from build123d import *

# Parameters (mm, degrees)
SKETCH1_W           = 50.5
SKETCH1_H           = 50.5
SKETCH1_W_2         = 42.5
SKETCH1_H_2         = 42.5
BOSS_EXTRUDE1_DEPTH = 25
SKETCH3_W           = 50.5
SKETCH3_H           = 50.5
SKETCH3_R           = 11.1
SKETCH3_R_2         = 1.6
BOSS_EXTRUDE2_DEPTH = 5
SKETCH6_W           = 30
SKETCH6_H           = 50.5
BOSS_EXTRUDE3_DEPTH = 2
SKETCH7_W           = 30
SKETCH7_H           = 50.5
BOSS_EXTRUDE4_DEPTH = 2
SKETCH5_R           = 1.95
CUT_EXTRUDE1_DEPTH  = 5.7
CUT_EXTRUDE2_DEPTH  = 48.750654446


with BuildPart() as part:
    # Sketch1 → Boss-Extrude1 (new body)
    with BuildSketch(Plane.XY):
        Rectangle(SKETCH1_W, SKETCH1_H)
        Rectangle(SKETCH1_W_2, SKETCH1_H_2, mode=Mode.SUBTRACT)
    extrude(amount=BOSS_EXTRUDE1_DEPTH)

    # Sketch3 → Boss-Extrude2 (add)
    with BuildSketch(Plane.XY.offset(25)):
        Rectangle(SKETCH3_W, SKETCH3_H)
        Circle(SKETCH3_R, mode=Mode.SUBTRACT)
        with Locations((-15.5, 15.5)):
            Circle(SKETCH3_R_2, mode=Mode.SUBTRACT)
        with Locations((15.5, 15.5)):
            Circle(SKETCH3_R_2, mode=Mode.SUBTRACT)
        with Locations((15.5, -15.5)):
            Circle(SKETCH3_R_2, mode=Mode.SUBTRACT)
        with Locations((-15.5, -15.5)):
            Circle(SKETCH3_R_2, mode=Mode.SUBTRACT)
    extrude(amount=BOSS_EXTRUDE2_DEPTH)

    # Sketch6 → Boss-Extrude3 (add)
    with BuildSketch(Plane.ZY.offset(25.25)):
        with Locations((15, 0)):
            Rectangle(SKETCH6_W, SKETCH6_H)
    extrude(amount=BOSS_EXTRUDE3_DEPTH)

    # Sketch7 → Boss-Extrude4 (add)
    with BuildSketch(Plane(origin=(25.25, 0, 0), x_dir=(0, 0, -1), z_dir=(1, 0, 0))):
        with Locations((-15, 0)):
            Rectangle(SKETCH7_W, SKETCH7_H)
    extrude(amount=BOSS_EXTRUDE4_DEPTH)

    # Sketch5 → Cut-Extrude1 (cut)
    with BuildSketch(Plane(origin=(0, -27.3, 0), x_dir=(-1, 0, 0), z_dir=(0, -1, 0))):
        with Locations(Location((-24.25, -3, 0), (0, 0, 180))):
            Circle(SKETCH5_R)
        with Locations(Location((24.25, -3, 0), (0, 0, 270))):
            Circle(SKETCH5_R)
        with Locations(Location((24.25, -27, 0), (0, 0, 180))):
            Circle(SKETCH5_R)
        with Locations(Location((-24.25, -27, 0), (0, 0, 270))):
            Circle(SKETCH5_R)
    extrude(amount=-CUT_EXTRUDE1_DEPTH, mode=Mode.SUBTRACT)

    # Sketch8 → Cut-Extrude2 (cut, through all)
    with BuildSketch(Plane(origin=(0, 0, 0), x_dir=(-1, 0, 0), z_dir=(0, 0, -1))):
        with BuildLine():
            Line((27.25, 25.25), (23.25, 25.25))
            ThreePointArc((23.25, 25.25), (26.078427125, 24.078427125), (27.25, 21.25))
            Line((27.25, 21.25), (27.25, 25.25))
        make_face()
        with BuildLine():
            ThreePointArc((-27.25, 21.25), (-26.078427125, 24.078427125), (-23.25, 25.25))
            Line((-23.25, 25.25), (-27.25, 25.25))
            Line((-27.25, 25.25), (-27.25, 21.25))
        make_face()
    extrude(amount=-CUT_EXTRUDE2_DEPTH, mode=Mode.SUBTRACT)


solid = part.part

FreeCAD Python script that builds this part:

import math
import FreeCAD as App
import Part
import Sketcher

doc = App.newDocument("Part")
body = doc.addObject("PartDesign::Body", "Body")

# Sketch on XY plane
sketch1 = body.newObject("Sketcher::SketchObject", "Sketch")
sketch1.AttachmentSupport = (doc.getObject("XY_Plane"), [""])
sketch1.MapMode = "FlatFace"
sketch1.addGeometry([
    Part.LineSegment(App.Vector(-25, 25, 0), App.Vector(-25, -25, 0)),  # 0
    Part.LineSegment(App.Vector(-25, -25, 0), App.Vector(25, -25, 0)),  # 1
    Part.LineSegment(App.Vector(25, -25, 0), App.Vector(25, 25, 0)),  # 2
    Part.LineSegment(App.Vector(25, 25, 0), App.Vector(-25, 25, 0)),  # 3
    Part.LineSegment(App.Vector(21, -21, 0), App.Vector(-21, -21, 0)),  # 4
    Part.LineSegment(App.Vector(-21, -21, 0), App.Vector(-21, 21, 0)),  # 5
    Part.LineSegment(App.Vector(-21, 21, 0), App.Vector(21, 21, 0)),  # 6
    Part.LineSegment(App.Vector(21, 21, 0), App.Vector(21, -21, 0)),  # 7
], False)
sketch1.addConstraint([
    Sketcher.Constraint("Coincident", 0, 2, 1, 1),
    Sketcher.Constraint("Coincident", 1, 2, 2, 1),
    Sketcher.Constraint("Coincident", 2, 2, 3, 1),
    Sketcher.Constraint("Coincident", 3, 2, 0, 1),
    Sketcher.Constraint("Coincident", 4, 2, 5, 1),
    Sketcher.Constraint("Coincident", 5, 2, 6, 1),
    Sketcher.Constraint("Coincident", 6, 2, 7, 1),
    Sketcher.Constraint("Coincident", 7, 2, 4, 1),
    Sketcher.Constraint("Vertical", 0),
    Sketcher.Constraint("Horizontal", 1),
    Sketcher.Constraint("Vertical", 2),
    Sketcher.Constraint("Horizontal", 3),
    Sketcher.Constraint("Horizontal", 4),
    Sketcher.Constraint("Vertical", 5),
    Sketcher.Constraint("Horizontal", 6),
    Sketcher.Constraint("Vertical", 7),
    Sketcher.Constraint("Symmetric", 0, 2, 2, 2, -1, 1),
    Sketcher.Constraint("Symmetric", 4, 2, 6, 2, -1, 1),
    Sketcher.Constraint("Equal", 3, 0),
    Sketcher.Constraint("Equal", 6, 5),
    Sketcher.Constraint("DistanceX", 1, 1, 1, 2, 50.5),
    Sketcher.Constraint("DistanceX", 4, 2, 4, 1, 42.5),
])
pad1 = body.newObject("PartDesign::Pad", "Pad")
pad1.Profile = sketch1
pad1.Length = 25

# Sketch on XY plane
sketch2 = body.newObject("Sketcher::SketchObject", "Sketch001")
sketch2.AttachmentSupport = (doc.getObject("XY_Plane"), [""])
sketch2.MapMode = "FlatFace"
sketch2.AttachmentOffset = App.Placement(App.Vector(0, 0, 25), App.Rotation())
sketch2.addGeometry([
    Part.LineSegment(App.Vector(-25.2, 25.2, 0), App.Vector(-25.2, -25.2, 0)),  # 0
    Part.LineSegment(App.Vector(-25.2, -25.2, 0), App.Vector(25.2, -25.2, 0)),  # 1
    Part.LineSegment(App.Vector(25.2, -25.2, 0), App.Vector(25.2, 25.2, 0)),  # 2
    Part.LineSegment(App.Vector(25.2, 25.2, 0), App.Vector(-25.2, 25.2, 0)),  # 3
    Part.Circle(App.Vector(-15.5, -15.5, 0), App.Vector(0, 0, 1), 1.6),  # 4
    Part.Circle(App.Vector(15.5, -15.5, 0), App.Vector(0, 0, 1), 1.6),  # 5
    Part.Circle(App.Vector(-15.5, 15.5, 0), App.Vector(0, 0, 1), 1.6),  # 6
    Part.Circle(App.Vector(0, 0, 0), App.Vector(0, 0, 1), 11.1),  # 7
    Part.Circle(App.Vector(15.5, 15.5, 0), App.Vector(0, 0, 1), 1.6),  # 8
], False)
sketch2.addConstraint([
    Sketcher.Constraint("Coincident", 0, 2, 1, 1),
    Sketcher.Constraint("Coincident", 1, 2, 2, 1),
    Sketcher.Constraint("Coincident", 2, 2, 3, 1),
    Sketcher.Constraint("Coincident", 3, 2, 0, 1),
    Sketcher.Constraint("Vertical", 0),
    Sketcher.Constraint("Horizontal", 1),
    Sketcher.Constraint("Vertical", 2),
    Sketcher.Constraint("Horizontal", 3),
    Sketcher.Constraint("Coincident", 7, 3, -1, 1),
    Sketcher.Constraint("Equal", 4, 5),
    Sketcher.Constraint("Equal", 5, 6),
    Sketcher.Constraint("Equal", 6, 8),
    Sketcher.Constraint("Symmetric", 5, 3, 6, 3, -1, 1),
    Sketcher.Constraint("Symmetric", 4, 3, 8, 3, -1, 1),
    Sketcher.Constraint("Symmetric", 0, 2, 2, 2, -1, 1),
    Sketcher.Constraint("Symmetric", 4, 3, 5, 3, -2),
    Sketcher.Constraint("Equal", 3, 0),
    Sketcher.Constraint("Diameter", 4, 3.2),
    Sketcher.Constraint("Diameter", 7, 22.2),
    Sketcher.Constraint("DistanceX", 1, 1, 1, 2, 50.5),
    Sketcher.Constraint("DistanceX", 4, 3, 5, 3, 31.0),
    Sketcher.Constraint("DistanceY", 4, 3, 6, 3, 31.0),
])
pad2 = body.newObject("PartDesign::Pad", "Pad001")
pad2.Profile = sketch2
pad2.Length = 5

# Sketch on YZ plane
sketch3 = body.newObject("Sketcher::SketchObject", "Sketch002")
sketch3.AttachmentSupport = (doc.getObject("YZ_Plane"), [""])
sketch3.MapMode = "FlatFace"
sketch3.AttachmentOffset = App.Placement(App.Vector(0, 0, -25.25), App.Rotation())
sketch3.addGeometry([
    Part.LineSegment(App.Vector(25, 0, 0), App.Vector(-25, 0, 0)),
    Part.LineSegment(App.Vector(-25, 0, 0), App.Vector(-25, 30, 0)),
    Part.LineSegment(App.Vector(-25, 30, 0), App.Vector(25, 30, 0)),
    Part.LineSegment(App.Vector(25, 30, 0), App.Vector(25, 0, 0)),
], False)
sketch3.addConstraint([
    Sketcher.Constraint("Coincident", 0, 2, 1, 1),
    Sketcher.Constraint("Coincident", 1, 2, 2, 1),
    Sketcher.Constraint("Coincident", 2, 2, 3, 1),
    Sketcher.Constraint("Coincident", 3, 2, 0, 1),
    Sketcher.Constraint("Horizontal", 0),
    Sketcher.Constraint("Vertical", 1),
    Sketcher.Constraint("Horizontal", 2),
    Sketcher.Constraint("Vertical", 3),
    Sketcher.Constraint("Symmetric", 0, 2, 3, 2, -1, 1),
    Sketcher.Constraint("DistanceY", 1, 1, 1, 2, 30.0),
    Sketcher.Constraint("DistanceX", 0, 2, 0, 1, 50.5),
])
pad3 = body.newObject("PartDesign::Pad", "Pad002")
pad3.Profile = sketch3
pad3.Length = 2
pad3.Reversed = True

# Sketch on YZ plane
sketch4 = body.newObject("Sketcher::SketchObject", "Sketch003")
sketch4.AttachmentSupport = (doc.getObject("YZ_Plane"), [""])
sketch4.MapMode = "FlatFace"
sketch4.AttachmentOffset = App.Placement(App.Vector(0, 0, 25.25), App.Rotation())
sketch4.addGeometry([
    Part.LineSegment(App.Vector(25, 30, 0), App.Vector(-25, 30, 0)),
    Part.LineSegment(App.Vector(-25, 30, 0), App.Vector(-25, 0, 0)),
    Part.LineSegment(App.Vector(-25, 0, 0), App.Vector(25, 0, 0)),
    Part.LineSegment(App.Vector(25, 0, 0), App.Vector(25, 30, 0)),
], False)
sketch4.addConstraint([
    Sketcher.Constraint("Coincident", 0, 2, 1, 1),
    Sketcher.Constraint("Coincident", 1, 2, 2, 1),
    Sketcher.Constraint("Coincident", 2, 2, 3, 1),
    Sketcher.Constraint("Coincident", 3, 2, 0, 1),
    Sketcher.Constraint("Horizontal", 0),
    Sketcher.Constraint("Vertical", 1),
    Sketcher.Constraint("Horizontal", 2),
    Sketcher.Constraint("Vertical", 3),
    Sketcher.Constraint("Symmetric", 1, 2, 2, 2, -1, 1),
    Sketcher.Constraint("DistanceY", 1, 2, 1, 1, 30.0),
    Sketcher.Constraint("DistanceX", 0, 2, 0, 1, 50.5),
])
pad4 = body.newObject("PartDesign::Pad", "Pad003")
pad4.Profile = sketch4
pad4.Length = 2

# Sketch on XZ plane
sketch5 = body.newObject("Sketcher::SketchObject", "Sketch004")
sketch5.AttachmentSupport = (doc.getObject("XZ_Plane"), [""])
sketch5.MapMode = "FlatFace"
sketch5.AttachmentOffset = App.Placement(App.Vector(0, 0, 27.3), App.Rotation())
sketch5.addGeometry([
    Part.Circle(App.Vector(24.2, 3, 0), App.Vector(0, 0, 1), 1.9),
    Part.Circle(App.Vector(-24.2, 3, 0), App.Vector(0, 0, 1), 1.9),
    Part.Circle(App.Vector(-24.2, 27, 0), App.Vector(0, 0, 1), 1.9),
    Part.Circle(App.Vector(24.2, 27, 0), App.Vector(0, 0, 1), 1.9),
], False)
sketch5.addConstraint([
    Sketcher.Constraint("Equal", 0, 1),
    Sketcher.Constraint("Equal", 1, 2),
    Sketcher.Constraint("Equal", 2, 3),
    Sketcher.Constraint("Symmetric", 0, 3, 1, 3, -2),
    Sketcher.Constraint("Symmetric", 2, 3, 3, 3, -2),
    Sketcher.Constraint("Vertical", 1, 3, 2, 3),
    Sketcher.Constraint("Diameter", 0, 3.9),
    Sketcher.Constraint("DistanceY", -1, 1, 0, 3, 3.0),
    Sketcher.Constraint("DistanceY", -1, 1, 2, 3, 27.0),
    Sketcher.Constraint("DistanceX", 1, 3, 0, 3, 48.5),
])
pocket1 = body.newObject("PartDesign::Pocket", "Pocket")
pocket1.Profile = sketch5
pocket1.Length = 5.7

# Sketch on XY plane
sketch6 = body.newObject("Sketcher::SketchObject", "Sketch005")
sketch6.AttachmentSupport = (doc.getObject("XY_Plane"), [""])
sketch6.MapMode = "FlatFace"
sketch6.addGeometry([
    Part.LineSegment(App.Vector(-27.2, 25.2, 0), App.Vector(-23.2, 25.2, 0)),  # 0
    Part.ArcOfCircle(Part.Circle(App.Vector(-23.3, 21.3, 0), App.Vector(0, 0, 1), 4), math.radians(90), math.radians(180)),  # 1
    Part.LineSegment(App.Vector(-27.2, 21.2, 0), App.Vector(-27.2, 25.2, 0)),  # 2
    Part.ArcOfCircle(Part.Circle(App.Vector(23.3, 21.3, 0), App.Vector(0, 0, 1), 4), math.radians(0), math.radians(90)),  # 3
    Part.LineSegment(App.Vector(23.2, 25.2, 0), App.Vector(27.2, 25.2, 0)),  # 4
    Part.LineSegment(App.Vector(27.2, 25.2, 0), App.Vector(27.2, 21.2, 0)),  # 5
], False)
sketch6.addConstraint([
    Sketcher.Constraint("Tangent", 0, 2, 1, 1),
    Sketcher.Constraint("Tangent", 1, 2, 2, 1),
    Sketcher.Constraint("Coincident", 2, 2, 0, 1),
    Sketcher.Constraint("Tangent", 3, 2, 4, 1),
    Sketcher.Constraint("Coincident", 4, 2, 5, 1),
    Sketcher.Constraint("Tangent", 5, 2, 3, 1),
    Sketcher.Constraint("Horizontal", 0),
    Sketcher.Constraint("Vertical", 2),
    Sketcher.Constraint("Horizontal", 4),
    Sketcher.Constraint("Vertical", 5),
    Sketcher.Constraint("Equal", 1, 3),
    Sketcher.Constraint("Symmetric", 1, 3, 3, 3, -2),
    Sketcher.Constraint("Radius", 1, 4.0),
    Sketcher.Constraint("DistanceX", 1, 3, 3, 3, 46.5),
    Sketcher.Constraint("DistanceY", -1, 1, 1, 3, 21.25),
])
pocket2 = body.newObject("PartDesign::Pocket", "Pocket001")
pocket2.Profile = sketch6
pocket2.Type = "ThroughAll"
pocket2.Reversed = True

doc.recompute()
